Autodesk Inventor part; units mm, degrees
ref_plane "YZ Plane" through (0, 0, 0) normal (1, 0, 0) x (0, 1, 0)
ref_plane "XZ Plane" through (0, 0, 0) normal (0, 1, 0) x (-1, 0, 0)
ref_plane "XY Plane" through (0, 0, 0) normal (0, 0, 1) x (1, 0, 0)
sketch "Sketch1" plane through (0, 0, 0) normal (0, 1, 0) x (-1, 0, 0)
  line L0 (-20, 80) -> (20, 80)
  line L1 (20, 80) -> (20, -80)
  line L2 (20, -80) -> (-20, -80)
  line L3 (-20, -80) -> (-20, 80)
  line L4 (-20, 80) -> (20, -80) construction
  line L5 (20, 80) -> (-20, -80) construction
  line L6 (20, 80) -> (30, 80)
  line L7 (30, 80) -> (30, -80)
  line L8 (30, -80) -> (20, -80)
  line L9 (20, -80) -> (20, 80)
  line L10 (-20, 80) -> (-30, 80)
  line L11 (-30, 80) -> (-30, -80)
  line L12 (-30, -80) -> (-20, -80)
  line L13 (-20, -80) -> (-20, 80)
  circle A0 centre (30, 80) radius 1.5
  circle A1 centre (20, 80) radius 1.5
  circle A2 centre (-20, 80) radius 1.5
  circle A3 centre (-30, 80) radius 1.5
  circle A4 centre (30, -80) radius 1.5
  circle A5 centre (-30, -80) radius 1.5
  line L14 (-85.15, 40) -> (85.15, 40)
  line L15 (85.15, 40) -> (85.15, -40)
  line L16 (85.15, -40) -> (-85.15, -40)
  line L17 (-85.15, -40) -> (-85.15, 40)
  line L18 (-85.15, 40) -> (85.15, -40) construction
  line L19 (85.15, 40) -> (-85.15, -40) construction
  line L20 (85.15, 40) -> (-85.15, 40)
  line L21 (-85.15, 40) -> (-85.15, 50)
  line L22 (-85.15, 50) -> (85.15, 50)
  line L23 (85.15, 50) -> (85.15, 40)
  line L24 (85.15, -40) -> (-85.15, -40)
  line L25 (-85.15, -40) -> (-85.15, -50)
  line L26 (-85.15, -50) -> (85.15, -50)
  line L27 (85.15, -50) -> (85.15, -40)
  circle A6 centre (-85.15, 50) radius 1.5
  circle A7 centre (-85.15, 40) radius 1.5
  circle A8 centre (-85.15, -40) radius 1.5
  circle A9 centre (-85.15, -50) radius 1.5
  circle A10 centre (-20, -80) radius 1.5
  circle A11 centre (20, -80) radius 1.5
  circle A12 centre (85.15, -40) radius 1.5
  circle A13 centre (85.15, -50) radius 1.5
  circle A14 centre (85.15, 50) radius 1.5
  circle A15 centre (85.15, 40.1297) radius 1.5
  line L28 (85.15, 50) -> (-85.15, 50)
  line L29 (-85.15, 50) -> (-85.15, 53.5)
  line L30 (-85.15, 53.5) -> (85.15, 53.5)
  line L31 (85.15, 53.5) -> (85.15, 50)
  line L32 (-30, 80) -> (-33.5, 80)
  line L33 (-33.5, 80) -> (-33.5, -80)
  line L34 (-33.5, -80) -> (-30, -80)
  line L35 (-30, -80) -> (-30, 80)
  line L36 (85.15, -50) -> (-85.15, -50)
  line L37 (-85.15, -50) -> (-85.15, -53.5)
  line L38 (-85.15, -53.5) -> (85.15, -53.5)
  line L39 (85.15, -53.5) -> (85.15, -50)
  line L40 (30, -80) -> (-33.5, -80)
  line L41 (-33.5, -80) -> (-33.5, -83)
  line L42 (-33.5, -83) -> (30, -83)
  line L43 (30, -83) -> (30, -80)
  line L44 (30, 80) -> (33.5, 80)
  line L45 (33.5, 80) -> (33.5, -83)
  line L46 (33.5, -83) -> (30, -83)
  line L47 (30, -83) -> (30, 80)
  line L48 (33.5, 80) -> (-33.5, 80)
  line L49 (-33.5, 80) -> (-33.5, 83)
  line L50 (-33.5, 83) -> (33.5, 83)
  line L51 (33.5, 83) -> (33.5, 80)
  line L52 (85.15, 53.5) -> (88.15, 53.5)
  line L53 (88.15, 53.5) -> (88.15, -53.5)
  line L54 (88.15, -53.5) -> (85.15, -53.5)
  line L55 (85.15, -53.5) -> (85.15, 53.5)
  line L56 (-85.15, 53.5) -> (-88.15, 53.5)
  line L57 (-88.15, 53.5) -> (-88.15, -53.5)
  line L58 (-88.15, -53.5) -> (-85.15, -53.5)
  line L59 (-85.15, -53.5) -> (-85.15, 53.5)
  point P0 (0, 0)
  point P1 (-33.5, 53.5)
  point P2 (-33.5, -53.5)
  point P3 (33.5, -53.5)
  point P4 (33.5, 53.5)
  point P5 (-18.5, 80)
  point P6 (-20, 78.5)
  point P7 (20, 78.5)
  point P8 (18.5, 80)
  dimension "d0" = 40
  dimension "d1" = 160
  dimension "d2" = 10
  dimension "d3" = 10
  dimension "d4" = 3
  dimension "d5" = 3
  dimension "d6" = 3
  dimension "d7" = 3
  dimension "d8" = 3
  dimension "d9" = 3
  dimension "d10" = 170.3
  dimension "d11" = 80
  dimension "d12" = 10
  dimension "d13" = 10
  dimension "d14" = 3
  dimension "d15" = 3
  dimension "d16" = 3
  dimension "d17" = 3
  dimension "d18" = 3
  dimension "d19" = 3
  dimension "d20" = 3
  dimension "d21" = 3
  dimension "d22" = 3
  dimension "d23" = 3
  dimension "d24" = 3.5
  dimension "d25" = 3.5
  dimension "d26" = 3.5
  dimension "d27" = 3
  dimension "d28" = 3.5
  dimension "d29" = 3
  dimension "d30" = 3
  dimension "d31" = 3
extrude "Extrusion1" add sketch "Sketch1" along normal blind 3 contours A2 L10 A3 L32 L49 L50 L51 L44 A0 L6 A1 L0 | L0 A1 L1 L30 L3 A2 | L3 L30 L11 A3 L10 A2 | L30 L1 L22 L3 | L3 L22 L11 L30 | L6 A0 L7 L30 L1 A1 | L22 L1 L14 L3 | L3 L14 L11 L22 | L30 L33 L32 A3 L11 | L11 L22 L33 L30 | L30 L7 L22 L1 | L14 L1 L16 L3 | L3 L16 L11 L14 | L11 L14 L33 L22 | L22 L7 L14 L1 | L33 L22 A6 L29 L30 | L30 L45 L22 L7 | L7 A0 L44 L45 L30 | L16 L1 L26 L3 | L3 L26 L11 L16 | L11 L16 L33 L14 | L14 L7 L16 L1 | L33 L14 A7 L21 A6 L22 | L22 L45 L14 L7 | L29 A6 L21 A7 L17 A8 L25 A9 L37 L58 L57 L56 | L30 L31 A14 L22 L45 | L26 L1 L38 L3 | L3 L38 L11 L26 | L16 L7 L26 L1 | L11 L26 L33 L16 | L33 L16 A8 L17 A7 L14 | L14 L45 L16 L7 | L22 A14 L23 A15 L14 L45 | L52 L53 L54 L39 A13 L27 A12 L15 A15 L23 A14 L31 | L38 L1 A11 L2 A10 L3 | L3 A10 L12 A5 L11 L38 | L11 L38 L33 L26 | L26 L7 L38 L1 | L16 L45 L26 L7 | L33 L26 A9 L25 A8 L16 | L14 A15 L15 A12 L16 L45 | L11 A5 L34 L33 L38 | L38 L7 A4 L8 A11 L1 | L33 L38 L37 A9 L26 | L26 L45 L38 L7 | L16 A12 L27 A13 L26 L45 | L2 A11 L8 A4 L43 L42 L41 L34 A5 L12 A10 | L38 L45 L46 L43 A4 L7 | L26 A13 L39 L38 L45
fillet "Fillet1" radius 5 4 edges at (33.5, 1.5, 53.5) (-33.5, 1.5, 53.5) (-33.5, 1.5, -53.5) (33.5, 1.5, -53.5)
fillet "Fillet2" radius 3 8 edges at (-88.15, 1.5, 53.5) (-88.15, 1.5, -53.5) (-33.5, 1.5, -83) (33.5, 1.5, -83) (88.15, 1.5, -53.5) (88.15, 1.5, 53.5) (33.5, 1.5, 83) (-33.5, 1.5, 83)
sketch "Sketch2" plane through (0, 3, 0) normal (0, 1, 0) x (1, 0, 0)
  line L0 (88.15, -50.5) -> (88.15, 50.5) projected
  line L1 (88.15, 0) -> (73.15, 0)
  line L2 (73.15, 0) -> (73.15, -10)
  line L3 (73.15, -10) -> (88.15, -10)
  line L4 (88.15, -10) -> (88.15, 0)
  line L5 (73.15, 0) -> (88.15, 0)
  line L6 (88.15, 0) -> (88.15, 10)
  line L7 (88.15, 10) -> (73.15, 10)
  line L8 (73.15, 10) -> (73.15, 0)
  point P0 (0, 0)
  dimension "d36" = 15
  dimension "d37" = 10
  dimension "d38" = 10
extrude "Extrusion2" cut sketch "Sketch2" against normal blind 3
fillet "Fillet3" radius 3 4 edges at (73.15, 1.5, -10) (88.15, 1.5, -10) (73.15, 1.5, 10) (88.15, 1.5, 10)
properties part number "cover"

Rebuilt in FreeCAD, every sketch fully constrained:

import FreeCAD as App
import Part
import Sketcher


def edges_at(feature, points):
    """Names of the edges that pass closest to the given points."""
    edges = feature.Shape.Edges
    near = lambda p: min(range(len(edges)), key=lambda i: edges[i].distToShape(Part.Vertex(*p))[0])
    return sorted({f"Edge{near(p) + 1}" for p in points})


def add_polygon(sketch, points):
    """Adds a closed chain of lines whose ends are joined by coincident constraints."""
    first, n = sketch.GeometryCount, len(points)
    for a, b in zip(points, points[1:] + points[:1]):
        sketch.addGeometry(Part.LineSegment(App.Vector(*a, 0), App.Vector(*b, 0)), False)
    for i in range(n):
        sketch.addConstraint(Sketcher.Constraint("Coincident", first + i, 2, first + (i + 1) % n, 1))

doc = App.newDocument("Part")
params = doc.addObject("Spreadsheet::Sheet", "Params")
for row, (alias, value) in enumerate([
    ("sketch1_diameter", "3 mm"),
    ("pad1_length", "3 mm"),
    ("fillet_radius", "5 mm"),
    ("fillet2_radius", "3 mm"),
    ("sketch2_width", "15 mm"),
    ("pocket1_length", "3 mm"),
    ("fillet3_radius", "3 mm"),
], start=1):
    params.set(f"A{row}", alias)
    params.set(f"B{row}", "=" + value)
    params.setAlias(f"B{row}", alias)

body = doc.addObject("PartDesign::Body", "Body")

sketch1 = body.newObject("Sketcher::SketchObject", "Sketch")
sketch1.AttachmentSupport = (doc.getObject("XZ_Plane"), [""])
sketch1.MapMode = "FlatFace"
add_polygon(sketch1, [(33.5, 83), (33.5, 53.5), (88.2, 53.5), (88.2, -53.5), (33.5, -53.5), (33.5, -83), (-33.5, -83), (-33.5, -53.5), (-88.2, -53.5), (-88.2, 53.5), (-33.5, 53.5), (-33.5, 83)])
sketch1.addGeometry(Part.Circle(App.Vector(20, 80, 0), App.Vector(0, 0, 1), 1.5), False)
sketch1.addGeometry(Part.Circle(App.Vector(30, 80, 0), App.Vector(0, 0, 1), 1.5), False)
sketch1.addGeometry(Part.Circle(App.Vector(-30, 80, 0), App.Vector(0, 0, 1), 1.5), False)
sketch1.addGeometry(Part.Circle(App.Vector(-20, 80, 0), App.Vector(0, 0, 1), 1.5), False)
sketch1.addGeometry(Part.Circle(App.Vector(85.2, 50, 0), App.Vector(0, 0, 1), 1.5), False)
sketch1.addGeometry(Part.Circle(App.Vector(-85.2, 50, 0), App.Vector(0, 0, 1), 1.5), False)
sketch1.addGeometry(Part.Circle(App.Vector(85.2, 40, 0), App.Vector(0, 0, 1), 1.5), False)
sketch1.addGeometry(Part.Circle(App.Vector(85.2, -40, 0), App.Vector(0, 0, 1), 1.5), False)
sketch1.addGeometry(Part.Circle(App.Vector(85.2, -50, 0), App.Vector(0, 0, 1), 1.5), False)
sketch1.addGeometry(Part.Circle(App.Vector(-85.2, -50, 0), App.Vector(0, 0, 1), 1.5), False)
sketch1.addGeometry(Part.Circle(App.Vector(-85.2, -40, 0), App.Vector(0, 0, 1), 1.5), False)
sketch1.addGeometry(Part.Circle(App.Vector(-85.2, 40.1, 0), App.Vector(0, 0, 1), 1.5), False)
sketch1.addGeometry(Part.Circle(App.Vector(20, -80, 0), App.Vector(0, 0, 1), 1.5), False)
sketch1.addGeometry(Part.Circle(App.Vector(30, -80, 0), App.Vector(0, 0, 1), 1.5), False)
sketch1.addGeometry(Part.Circle(App.Vector(-30, -80, 0), App.Vector(0, 0, 1), 1.5), False)
sketch1.addGeometry(Part.Circle(App.Vector(-20, -80, 0), App.Vector(0, 0, 1), 1.5), False)
sketch1.addConstraint([
    Sketcher.Constraint("Vertical", 0),
    Sketcher.Constraint("Horizontal", 1),
    Sketcher.Constraint("Vertical", 2),
    Sketcher.Constraint("Horizontal", 3),
    Sketcher.Constraint("Vertical", 4),
    Sketcher.Constraint("Horizontal", 5),
    Sketcher.Constraint("Vertical", 6),
    Sketcher.Constraint("Horizontal", 7),
    Sketcher.Constraint("Vertical", 8),
    Sketcher.Constraint("Horizontal", 9),
    Sketcher.Constraint("Vertical", 10),
    Sketcher.Constraint("Horizontal", 11),
    Sketcher.Constraint("Equal", 12, 13),
    Sketcher.Constraint("Equal", 13, 14),
    Sketcher.Constraint("Equal", 14, 15),
    Sketcher.Constraint("Equal", 15, 16),
    Sketcher.Constraint("Equal", 16, 17),
    Sketcher.Constraint("Equal", 17, 18),
    Sketcher.Constraint("Equal", 18, 19),
    Sketcher.Constraint("Equal", 19, 20),
    Sketcher.Constraint("Equal", 20, 21),
    Sketcher.Constraint("Equal", 21, 22),
    Sketcher.Constraint("Equal", 22, 23),
    Sketcher.Constraint("Equal", 23, 24),
    Sketcher.Constraint("Equal", 24, 25),
    Sketcher.Constraint("Equal", 25, 26),
    Sketcher.Constraint("Equal", 26, 27),
    Sketcher.Constraint("Symmetric", 17, 3, 20, 3, -1, 1),
    Sketcher.Constraint("Symmetric", 16, 3, 21, 3, -1, 1),
    Sketcher.Constraint("Symmetric", 18, 3, 22, 3, -1, 1),
    Sketcher.Constraint("Symmetric", 15, 3, 24, 3, -1, 1),
    Sketcher.Constraint("Symmetric", 14, 3, 25, 3, -1, 1),
    Sketcher.Constraint("Symmetric", 13, 3, 26, 3, -1, 1),
    Sketcher.Constraint("Symmetric", 12, 3, 27, 3, -1, 1),
    Sketcher.Constraint("Symmetric", 0, 2, 6, 2, -1, 1),
    Sketcher.Constraint("Symmetric", 2, 2, 8, 2, -1, 1),
    Sketcher.Constraint("Symmetric", 4, 2, 10, 2, -1, 1),
    Sketcher.Constraint("Symmetric", 13, 3, 14, 3, -2),
    Sketcher.Constraint("Symmetric", 12, 3, 15, 3, -2),
    Sketcher.Constraint("Symmetric", 16, 3, 17, 3, -2),
    Sketcher.Constraint("Symmetric", 19, 3, 22, 3, -2),
    Sketcher.Constraint("Symmetric", 3, 2, 6, 2, -2),
    Sketcher.Constraint("Horizontal", 12, 3, 13, 3),
    Sketcher.Constraint("Vertical", 16, 3, 18, 3),
    Sketcher.Constraint("Vertical", 22, 3, 23, 3),
    Sketcher.Constraint("Diameter", 12, 3.0),
    Sketcher.Constraint("DistanceY", -1, 1, 12, 3, 80.0),
    Sketcher.Constraint("DistanceY", -1, 1, 18, 3, 40.0),
    Sketcher.Constraint("DistanceX", 12, 3, 13, 3, 10.0),
    Sketcher.Constraint("DistanceX", 15, 3, 12, 3, 40.0),
    Sketcher.Constraint("DistanceY", 18, 3, 16, 3, 10.0),
    Sketcher.Constraint("DistanceX", 16, 3, 1, 2, 3.0),
    Sketcher.Constraint("DistanceY", 4, 2, 25, 3, 3.0),
    Sketcher.Constraint("DistanceX", 17, 3, 16, 3, 170.3),
    Sketcher.Constraint("DistanceX", 13, 3, 0, 2, 3.5),
    Sketcher.Constraint("DistanceY", 16, 3, 0, 2, 3.5),
    Sketcher.Constraint("DistanceY", -1, 1, 23, 3, 40.1297),
])
sketch1.setExpression("Constraints[57]", "Params.sketch1_diameter")
pad1 = body.newObject("PartDesign::Pad", "Pad")
pad1.Profile = sketch1
pad1.setExpression("Length", "Params.pad1_length")
pad1.Reversed = True
doc.recompute()

fillet = body.newObject("PartDesign::Fillet", "Fillet")
fillet.Base = (pad1, edges_at(pad1, [
    (33.5, 1.5, 53.5),
    (-33.5, 1.5, 53.5),
    (-33.5, 1.5, -53.5),
    (33.5, 1.5, -53.5),
]))
fillet.setExpression("Radius", "Params.fillet_radius")
doc.recompute()

fillet2 = body.newObject("PartDesign::Fillet", "Fillet001")
fillet2.Base = (fillet, edges_at(fillet, [
    (-88.15, 1.5, 53.5),
    (-88.15, 1.5, -53.5),
    (-33.5, 1.5, -83),
    (33.5, 1.5, -83),
    (88.15, 1.5, -53.5),
    (88.15, 1.5, 53.5),
    (33.5, 1.5, 83),
    (-33.5, 1.5, 83),
]))
fillet2.setExpression("Radius", "Params.fillet2_radius")

sketch2 = body.newObject("Sketcher::SketchObject", "Sketch001")
sketch2.AttachmentSupport = (doc.getObject("XZ_Plane"), [""])
sketch2.MapMode = "FlatFace"
sketch2.AttachmentOffset = App.Placement(App.Vector(0, 0, -3), App.Rotation())
add_polygon(sketch2, [(73, 10), (88, 10), (88, -10), (73, -10)])
sketch2.addConstraint([
    Sketcher.Constraint("Horizontal", 0),
    Sketcher.Constraint("Vertical", 1),
    Sketcher.Constraint("Horizontal", 2),
    Sketcher.Constraint("Vertical", 3),
    Sketcher.Constraint("DistanceX", 0, 1, 0, 2, 15.0),
    Sketcher.Constraint("DistanceY", -1, 1, 0, 2, 10.0),
    Sketcher.Constraint("DistanceY", 1, 2, -1, 1, 10.0),
    Sketcher.Constraint("DistanceX", -1, 1, 0, 2, 88.15),
])
sketch2.setExpression("Constraints[8]", "Params.sketch2_width")
pocket1 = body.newObject("PartDesign::Pocket", "Pocket")
pocket1.Profile = sketch2
pocket1.setExpression("Length", "Params.pocket1_length")
pocket1.Reversed = True
doc.recompute()

fillet3 = body.newObject("PartDesign::Fillet", "Fillet002")
fillet3.Base = (pocket1, edges_at(pocket1, [
    (73.15, 1.5, -10),
    (88.15, 1.5, -10),
    (73.15, 1.5, 10),
    (88.15, 1.5, 10),
]))
fillet3.setExpression("Radius", "Params.fillet3_radius")

doc.recompute()
